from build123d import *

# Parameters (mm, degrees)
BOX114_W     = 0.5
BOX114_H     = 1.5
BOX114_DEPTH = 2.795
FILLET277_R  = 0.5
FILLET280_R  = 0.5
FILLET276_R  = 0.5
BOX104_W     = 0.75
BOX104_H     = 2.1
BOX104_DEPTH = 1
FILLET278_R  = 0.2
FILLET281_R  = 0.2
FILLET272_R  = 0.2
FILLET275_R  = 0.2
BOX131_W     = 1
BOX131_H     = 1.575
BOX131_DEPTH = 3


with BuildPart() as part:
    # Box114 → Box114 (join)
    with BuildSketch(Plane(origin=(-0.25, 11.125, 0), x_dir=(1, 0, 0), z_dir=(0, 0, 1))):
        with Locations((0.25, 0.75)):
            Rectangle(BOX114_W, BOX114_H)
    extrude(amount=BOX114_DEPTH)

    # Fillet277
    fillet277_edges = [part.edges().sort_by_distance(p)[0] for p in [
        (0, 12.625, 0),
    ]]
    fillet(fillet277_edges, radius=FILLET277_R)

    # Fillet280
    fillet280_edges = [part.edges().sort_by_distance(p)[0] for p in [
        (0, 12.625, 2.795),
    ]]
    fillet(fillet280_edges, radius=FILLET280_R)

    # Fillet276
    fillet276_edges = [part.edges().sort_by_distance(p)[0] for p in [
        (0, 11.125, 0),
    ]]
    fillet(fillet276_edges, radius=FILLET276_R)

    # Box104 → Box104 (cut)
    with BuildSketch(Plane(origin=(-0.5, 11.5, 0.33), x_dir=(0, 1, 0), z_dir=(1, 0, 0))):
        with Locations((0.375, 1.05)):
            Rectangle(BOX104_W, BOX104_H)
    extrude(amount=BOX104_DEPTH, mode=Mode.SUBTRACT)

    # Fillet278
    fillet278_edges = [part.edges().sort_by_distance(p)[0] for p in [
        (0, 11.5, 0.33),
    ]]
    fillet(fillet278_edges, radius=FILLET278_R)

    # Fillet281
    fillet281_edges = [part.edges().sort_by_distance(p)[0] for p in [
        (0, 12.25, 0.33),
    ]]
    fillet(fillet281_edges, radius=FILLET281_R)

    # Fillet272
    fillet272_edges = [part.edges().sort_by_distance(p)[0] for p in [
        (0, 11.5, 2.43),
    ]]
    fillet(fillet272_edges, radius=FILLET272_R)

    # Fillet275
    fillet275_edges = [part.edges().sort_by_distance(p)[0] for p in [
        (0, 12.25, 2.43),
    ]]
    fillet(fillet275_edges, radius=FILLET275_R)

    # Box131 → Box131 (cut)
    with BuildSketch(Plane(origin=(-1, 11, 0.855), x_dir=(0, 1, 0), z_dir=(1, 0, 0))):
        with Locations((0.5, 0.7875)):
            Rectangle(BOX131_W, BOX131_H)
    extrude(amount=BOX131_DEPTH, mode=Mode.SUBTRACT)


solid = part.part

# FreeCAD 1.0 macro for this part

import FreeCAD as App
import Part
import Sketcher


def edges_at(feature, points):
    """Names of the edges that pass closest to the given points."""
    edges = feature.Shape.Edges
    near = lambda p: min(range(len(edges)), key=lambda i: edges[i].distToShape(Part.Vertex(*p))[0])
    return sorted({f"Edge{near(p) + 1}" for p in points})

doc = App.newDocument("Part")
params = doc.addObject("Spreadsheet::Sheet", "Params")
for row, (alias, value) in enumerate([
    ("sketch1_width", "0.5 mm"),
    ("sketch1_height", "1.5 mm"),
    ("pad1_length", "2.795 mm"),
    ("fillet_radius", "0.5 mm"),
    ("fillet2_radius", "0.5 mm"),
    ("fillet3_radius", "0.5 mm"),
    ("sketch2_height", "2.1 mm"),
    ("sketch2_width", "0.75 mm"),
    ("pocket1_length", "1 mm"),
    ("fillet4_radius", "0.2 mm"),
    ("fillet5_radius", "0.2 mm"),
    ("fillet6_radius", "0.2 mm"),
    ("fillet7_radius", "0.2 mm"),
    ("sketch3_width", "1 mm"),
    ("pocket2_length", "3 mm"),
], start=1):
    params.set(f"A{row}", alias)
    params.set(f"B{row}", "=" + value)
    params.setAlias(f"B{row}", alias)

body = doc.addObject("PartDesign::Body", "Body")

# Sketch on XY plane
sketch1 = body.newObject("Sketcher::SketchObject", "Sketch")
sketch1.AttachmentSupport = (doc.getObject("XY_Plane"), [""])
sketch1.MapMode = "FlatFace"
sketch1.addGeometry([
    Part.LineSegment(App.Vector(-0.2, 12.6, 0), App.Vector(-0.2, 11.1, 0)),
    Part.LineSegment(App.Vector(-0.2, 11.1, 0), App.Vector(0.2, 11.1, 0)),
    Part.LineSegment(App.Vector(0.2, 11.1, 0), App.Vector(0.2, 12.6, 0)),
    Part.LineSegment(App.Vector(0.2, 12.6, 0), App.Vector(-0.2, 12.6, 0)),
], False)
sketch1.addConstraint([
    Sketcher.Constraint("Coincident", 0, 2, 1, 1),
    Sketcher.Constraint("Coincident", 1, 2, 2, 1),
    Sketcher.Constraint("Coincident", 2, 2, 3, 1),
    Sketcher.Constraint("Coincident", 3, 2, 0, 1),
    Sketcher.Constraint("Vertical", 0),
    Sketcher.Constraint("Horizontal", 1),
    Sketcher.Constraint("Vertical", 2),
    Sketcher.Constraint("Horizontal", 3),
    Sketcher.Constraint("DistanceX", 1, 1, 1, 2, 0.5),
    Sketcher.Constraint("DistanceY", 0, 2, 0, 1, 1.5),
    Sketcher.Constraint("DistanceX", 0, 2, -1, 1, 0.25),
    Sketcher.Constraint("DistanceY", -1, 1, 0, 2, 11.125),
])
sketch1.setExpression("Constraints[8]", "Params.sketch1_width")
sketch1.setExpression("Constraints[9]", "Params.sketch1_height")
pad1 = body.newObject("PartDesign::Pad", "Pad")
pad1.Profile = sketch1
pad1.setExpression("Length", "Params.pad1_length")
doc.recompute()

fillet = body.newObject("PartDesign::Fillet", "Fillet")
fillet.Base = (pad1, edges_at(pad1, [(0, 12.625, 0)]))
fillet.setExpression("Radius", "Params.fillet_radius")
doc.recompute()

fillet2 = body.newObject("PartDesign::Fillet", "Fillet001")
fillet2.Base = (fillet, edges_at(fillet, [(0, 12.625, 2.795)]))
fillet2.setExpression("Radius", "Params.fillet2_radius")
doc.recompute()

fillet3 = body.newObject("PartDesign::Fillet", "Fillet002")
fillet3.Base = (fillet2, edges_at(fillet2, [(0, 11.125, 0)]))
fillet3.setExpression("Radius", "Params.fillet3_radius")

# Sketch on YZ plane
sketch2 = body.newObject("Sketcher::SketchObject", "Sketch001")
sketch2.AttachmentSupport = (doc.getObject("YZ_Plane"), [""])
sketch2.MapMode = "FlatFace"
sketch2.AttachmentOffset = App.Placement(App.Vector(0, 0, -0.5), App.Rotation())
sketch2.addGeometry([
    Part.LineSegment(App.Vector(11.5, 2.4, 0), App.Vector(11.5, 0.3, 0)),
    Part.LineSegment(App.Vector(11.5, 0.3, 0), App.Vector(12.2, 0.3, 0)),
    Part.LineSegment(App.Vector(12.2, 0.3, 0), App.Vector(12.2, 2.4, 0)),
    Part.LineSegment(App.Vector(12.2, 2.4, 0), App.Vector(11.5, 2.4, 0)),
], False)
sketch2.addConstraint([
    Sketcher.Constraint("Coincident", 0, 2, 1, 1),
    Sketcher.Constraint("Coincident", 1, 2, 2, 1),
    Sketcher.Constraint("Coincident", 2, 2, 3, 1),
    Sketcher.Constraint("Coincident", 3, 2, 0, 1),
    Sketcher.Constraint("Vertical", 0),
    Sketcher.Constraint("Horizontal", 1),
    Sketcher.Constraint("Vertical", 2),
    Sketcher.Constraint("Horizontal", 3),
    Sketcher.Constraint("DistanceY", 0, 2, 0, 1, 2.1),
    Sketcher.Constraint("DistanceX", 1, 1, 1, 2, 0.75),
    Sketcher.Constraint("DistanceX", -1, 1, 0, 2, 11.5),
    Sketcher.Constraint("DistanceY", -1, 1, 0, 2, 0.33),
])
sketch2.setExpression("Constraints[8]", "Params.sketch2_height")
sketch2.setExpression("Constraints[9]", "Params.sketch2_width")
pocket1 = body.newObject("PartDesign::Pocket", "Pocket")
pocket1.Profile = sketch2
pocket1.setExpression("Length", "Params.pocket1_length")
pocket1.Reversed = True
doc.recompute()

fillet4 = body.newObject("PartDesign::Fillet", "Fillet003")
fillet4.Base = (pocket1, edges_at(pocket1, [(0, 11.5, 0.33)]))
fillet4.setExpression("Radius", "Params.fillet4_radius")
doc.recompute()

fillet5 = body.newObject("PartDesign::Fillet", "Fillet004")
fillet5.Base = (fillet4, edges_at(fillet4, [(0, 12.25, 0.33)]))
fillet5.setExpression("Radius", "Params.fillet5_radius")
doc.recompute()

fillet6 = body.newObject("PartDesign::Fillet", "Fillet005")
fillet6.Base = (fillet5, edges_at(fillet5, [(0, 11.5, 2.43)]))
fillet6.setExpression("Radius", "Params.fillet6_radius")
doc.recompute()

fillet7 = body.newObject("PartDesign::Fillet", "Fillet006")
fillet7.Base = (fillet6, edges_at(fillet6, [(0, 12.25, 2.43)]))
fillet7.setExpression("Radius", "Params.fillet7_radius")

# Sketch on YZ plane
sketch3 = body.newObject("Sketcher::SketchObject", "Sketch002")
sketch3.AttachmentSupport = (doc.getObject("YZ_Plane"), [""])
sketch3.MapMode = "FlatFace"
sketch3.AttachmentOffset = App.Placement(App.Vector(0, 0, -1), App.Rotation())
sketch3.addGeometry([
    Part.LineSegment(App.Vector(11, 2.4, 0), App.Vector(11, 0.9, 0)),
    Part.LineSegment(App.Vector(11, 0.9, 0), App.Vector(12, 0.9, 0)),
    Part.LineSegment(App.Vector(12, 0.9, 0), App.Vector(12, 2.4, 0)),
    Part.LineSegment(App.Vector(12, 2.4, 0), App.Vector(11, 2.4, 0)),
], False)
sketch3.addConstraint([
    Sketcher.Constraint("Coincident", 0, 2, 1, 1),
    Sketcher.Constraint("Coincident", 1, 2, 2, 1),
    Sketcher.Constraint("Coincident", 2, 2, 3, 1),
    Sketcher.Constraint("Coincident", 3, 2, 0, 1),
    Sketcher.Constraint("Vertical", 0),
    Sketcher.Constraint("Horizontal", 1),
    Sketcher.Constraint("Vertical", 2),
    Sketcher.Constraint("Horizontal", 3),
    Sketcher.Constraint("DistanceX", 1, 1, 1, 2, 1.0),
    Sketcher.Constraint("DistanceX", -1, 1, 0, 2, 11.0),
    Sketcher.Constraint("DistanceY", 0, 2, 0, 1, 1.575),
    Sketcher.Constraint("DistanceY", -1, 1, 2, 2, 2.43),
])
sketch3.setExpression("Constraints[8]", "Params.sketch3_width")
pocket2 = body.newObject("PartDesign::Pocket", "Pocket001")
pocket2.Profile = sketch3
pocket2.setExpression("Length", "Params.pocket2_length")
pocket2.Reversed = True

doc.recompute()
